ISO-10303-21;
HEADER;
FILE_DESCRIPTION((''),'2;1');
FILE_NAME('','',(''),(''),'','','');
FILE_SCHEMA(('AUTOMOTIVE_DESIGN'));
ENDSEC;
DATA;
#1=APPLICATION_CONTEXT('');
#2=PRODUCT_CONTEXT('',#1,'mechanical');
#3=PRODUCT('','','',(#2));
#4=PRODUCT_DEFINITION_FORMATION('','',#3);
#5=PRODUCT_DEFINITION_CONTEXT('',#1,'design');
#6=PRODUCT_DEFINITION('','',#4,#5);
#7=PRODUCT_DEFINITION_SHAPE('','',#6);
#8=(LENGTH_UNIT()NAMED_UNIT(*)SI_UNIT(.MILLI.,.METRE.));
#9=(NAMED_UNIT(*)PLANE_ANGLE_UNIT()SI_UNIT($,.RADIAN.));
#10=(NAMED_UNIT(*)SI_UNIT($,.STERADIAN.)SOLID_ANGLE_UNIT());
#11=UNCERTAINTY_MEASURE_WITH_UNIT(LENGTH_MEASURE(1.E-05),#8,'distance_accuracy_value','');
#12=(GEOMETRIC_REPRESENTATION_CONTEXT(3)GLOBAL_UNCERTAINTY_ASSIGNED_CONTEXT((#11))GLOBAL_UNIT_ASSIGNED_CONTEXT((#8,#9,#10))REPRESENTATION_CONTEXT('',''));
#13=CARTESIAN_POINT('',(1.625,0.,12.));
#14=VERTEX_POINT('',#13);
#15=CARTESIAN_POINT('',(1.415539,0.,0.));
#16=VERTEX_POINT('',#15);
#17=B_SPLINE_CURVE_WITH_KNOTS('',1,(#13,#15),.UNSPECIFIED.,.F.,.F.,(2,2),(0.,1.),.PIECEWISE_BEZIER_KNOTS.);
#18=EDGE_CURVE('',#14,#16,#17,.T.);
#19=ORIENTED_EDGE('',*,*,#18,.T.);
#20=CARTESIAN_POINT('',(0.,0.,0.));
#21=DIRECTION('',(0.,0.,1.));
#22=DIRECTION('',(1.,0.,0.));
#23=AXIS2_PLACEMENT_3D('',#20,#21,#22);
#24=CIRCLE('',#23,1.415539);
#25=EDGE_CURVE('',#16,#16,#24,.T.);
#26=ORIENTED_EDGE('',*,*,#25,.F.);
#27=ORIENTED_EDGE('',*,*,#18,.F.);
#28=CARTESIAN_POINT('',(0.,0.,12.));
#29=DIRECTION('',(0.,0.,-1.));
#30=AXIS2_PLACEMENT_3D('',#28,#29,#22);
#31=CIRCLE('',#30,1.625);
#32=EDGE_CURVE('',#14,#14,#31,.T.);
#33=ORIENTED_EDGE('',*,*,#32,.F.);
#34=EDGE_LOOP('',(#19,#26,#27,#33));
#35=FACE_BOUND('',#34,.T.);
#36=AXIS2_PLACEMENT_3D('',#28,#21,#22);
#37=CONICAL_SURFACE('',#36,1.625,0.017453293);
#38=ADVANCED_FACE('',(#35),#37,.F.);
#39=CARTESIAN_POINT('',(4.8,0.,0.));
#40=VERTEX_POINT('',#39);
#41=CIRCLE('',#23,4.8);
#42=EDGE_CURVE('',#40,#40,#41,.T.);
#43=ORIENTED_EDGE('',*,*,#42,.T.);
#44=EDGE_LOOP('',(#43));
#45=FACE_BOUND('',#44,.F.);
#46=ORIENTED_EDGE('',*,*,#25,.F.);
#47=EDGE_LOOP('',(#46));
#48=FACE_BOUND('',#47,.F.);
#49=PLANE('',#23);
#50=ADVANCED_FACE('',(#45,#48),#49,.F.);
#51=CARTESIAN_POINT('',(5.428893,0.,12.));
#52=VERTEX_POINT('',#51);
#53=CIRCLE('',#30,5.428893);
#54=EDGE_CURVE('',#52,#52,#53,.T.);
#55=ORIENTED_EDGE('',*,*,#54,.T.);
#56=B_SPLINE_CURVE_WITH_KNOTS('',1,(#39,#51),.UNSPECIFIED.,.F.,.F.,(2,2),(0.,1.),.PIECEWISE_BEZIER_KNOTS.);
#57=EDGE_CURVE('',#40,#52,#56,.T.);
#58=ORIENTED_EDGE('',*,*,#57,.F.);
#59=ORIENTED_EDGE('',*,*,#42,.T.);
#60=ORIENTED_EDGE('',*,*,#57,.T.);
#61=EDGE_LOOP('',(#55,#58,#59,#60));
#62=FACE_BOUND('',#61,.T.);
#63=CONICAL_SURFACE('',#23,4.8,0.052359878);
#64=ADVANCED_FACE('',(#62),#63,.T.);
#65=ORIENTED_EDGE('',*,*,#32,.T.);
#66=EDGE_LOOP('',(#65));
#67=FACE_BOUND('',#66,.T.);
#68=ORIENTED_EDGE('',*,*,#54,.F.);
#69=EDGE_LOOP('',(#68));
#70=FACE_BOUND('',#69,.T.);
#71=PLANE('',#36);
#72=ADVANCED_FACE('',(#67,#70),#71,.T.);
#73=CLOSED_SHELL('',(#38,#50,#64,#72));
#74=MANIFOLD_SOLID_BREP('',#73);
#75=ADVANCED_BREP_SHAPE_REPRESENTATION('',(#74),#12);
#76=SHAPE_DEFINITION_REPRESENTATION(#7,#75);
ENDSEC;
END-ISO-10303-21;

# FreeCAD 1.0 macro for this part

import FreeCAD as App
import Part
import Sketcher
from FreeCAD import Vector
Q = App.Units.Quantity

doc = App.newDocument("Part")
body = doc.addObject("PartDesign::Body", "Body")

# Sketch on XY plane
sketch1 = body.newObject("Sketcher::SketchObject", "Sketch")
sketch1.AttachmentSupport = (doc.getObject("XY_Plane"), [""])
sketch1.MapMode = "FlatFace"
sketch1.addGeometry(Part.Circle(Vector(0, 0, 0), Vector(0, 0, 1), 4.8), False)
sketch1.addConstraint([
    Sketcher.Constraint("Coincident", 0, 3, -1, 1),
    Sketcher.Constraint("Diameter", 0, Q("9.6 mm")),
])
pad1 = body.newObject("PartDesign::Pad", "Pad")
pad1.Profile = sketch1
pad1.Length = 12
pad1.TaperAngle = 3

# Sketch on XY plane
sketch2 = body.newObject("Sketcher::SketchObject", "Sketch001")
sketch2.AttachmentSupport = (doc.getObject("XY_Plane"), [""])
sketch2.MapMode = "FlatFace"
sketch2.AttachmentOffset = App.Placement(Vector(0, 0, 12), App.Rotation())
sketch2.addGeometry(Part.Circle(Vector(0, 0, 0), Vector(0, 0, 1), 1.6), False)
sketch2.addConstraint([
    Sketcher.Constraint("Coincident", 0, 3, -1, 1),
    Sketcher.Constraint("Diameter", 0, Q("3.25 mm")),
])
pocket1 = body.newObject("PartDesign::Pocket", "Pocket")
pocket1.Profile = sketch2
pocket1.Length = 12
pocket1.TaperAngle = -1

doc.recompute()
